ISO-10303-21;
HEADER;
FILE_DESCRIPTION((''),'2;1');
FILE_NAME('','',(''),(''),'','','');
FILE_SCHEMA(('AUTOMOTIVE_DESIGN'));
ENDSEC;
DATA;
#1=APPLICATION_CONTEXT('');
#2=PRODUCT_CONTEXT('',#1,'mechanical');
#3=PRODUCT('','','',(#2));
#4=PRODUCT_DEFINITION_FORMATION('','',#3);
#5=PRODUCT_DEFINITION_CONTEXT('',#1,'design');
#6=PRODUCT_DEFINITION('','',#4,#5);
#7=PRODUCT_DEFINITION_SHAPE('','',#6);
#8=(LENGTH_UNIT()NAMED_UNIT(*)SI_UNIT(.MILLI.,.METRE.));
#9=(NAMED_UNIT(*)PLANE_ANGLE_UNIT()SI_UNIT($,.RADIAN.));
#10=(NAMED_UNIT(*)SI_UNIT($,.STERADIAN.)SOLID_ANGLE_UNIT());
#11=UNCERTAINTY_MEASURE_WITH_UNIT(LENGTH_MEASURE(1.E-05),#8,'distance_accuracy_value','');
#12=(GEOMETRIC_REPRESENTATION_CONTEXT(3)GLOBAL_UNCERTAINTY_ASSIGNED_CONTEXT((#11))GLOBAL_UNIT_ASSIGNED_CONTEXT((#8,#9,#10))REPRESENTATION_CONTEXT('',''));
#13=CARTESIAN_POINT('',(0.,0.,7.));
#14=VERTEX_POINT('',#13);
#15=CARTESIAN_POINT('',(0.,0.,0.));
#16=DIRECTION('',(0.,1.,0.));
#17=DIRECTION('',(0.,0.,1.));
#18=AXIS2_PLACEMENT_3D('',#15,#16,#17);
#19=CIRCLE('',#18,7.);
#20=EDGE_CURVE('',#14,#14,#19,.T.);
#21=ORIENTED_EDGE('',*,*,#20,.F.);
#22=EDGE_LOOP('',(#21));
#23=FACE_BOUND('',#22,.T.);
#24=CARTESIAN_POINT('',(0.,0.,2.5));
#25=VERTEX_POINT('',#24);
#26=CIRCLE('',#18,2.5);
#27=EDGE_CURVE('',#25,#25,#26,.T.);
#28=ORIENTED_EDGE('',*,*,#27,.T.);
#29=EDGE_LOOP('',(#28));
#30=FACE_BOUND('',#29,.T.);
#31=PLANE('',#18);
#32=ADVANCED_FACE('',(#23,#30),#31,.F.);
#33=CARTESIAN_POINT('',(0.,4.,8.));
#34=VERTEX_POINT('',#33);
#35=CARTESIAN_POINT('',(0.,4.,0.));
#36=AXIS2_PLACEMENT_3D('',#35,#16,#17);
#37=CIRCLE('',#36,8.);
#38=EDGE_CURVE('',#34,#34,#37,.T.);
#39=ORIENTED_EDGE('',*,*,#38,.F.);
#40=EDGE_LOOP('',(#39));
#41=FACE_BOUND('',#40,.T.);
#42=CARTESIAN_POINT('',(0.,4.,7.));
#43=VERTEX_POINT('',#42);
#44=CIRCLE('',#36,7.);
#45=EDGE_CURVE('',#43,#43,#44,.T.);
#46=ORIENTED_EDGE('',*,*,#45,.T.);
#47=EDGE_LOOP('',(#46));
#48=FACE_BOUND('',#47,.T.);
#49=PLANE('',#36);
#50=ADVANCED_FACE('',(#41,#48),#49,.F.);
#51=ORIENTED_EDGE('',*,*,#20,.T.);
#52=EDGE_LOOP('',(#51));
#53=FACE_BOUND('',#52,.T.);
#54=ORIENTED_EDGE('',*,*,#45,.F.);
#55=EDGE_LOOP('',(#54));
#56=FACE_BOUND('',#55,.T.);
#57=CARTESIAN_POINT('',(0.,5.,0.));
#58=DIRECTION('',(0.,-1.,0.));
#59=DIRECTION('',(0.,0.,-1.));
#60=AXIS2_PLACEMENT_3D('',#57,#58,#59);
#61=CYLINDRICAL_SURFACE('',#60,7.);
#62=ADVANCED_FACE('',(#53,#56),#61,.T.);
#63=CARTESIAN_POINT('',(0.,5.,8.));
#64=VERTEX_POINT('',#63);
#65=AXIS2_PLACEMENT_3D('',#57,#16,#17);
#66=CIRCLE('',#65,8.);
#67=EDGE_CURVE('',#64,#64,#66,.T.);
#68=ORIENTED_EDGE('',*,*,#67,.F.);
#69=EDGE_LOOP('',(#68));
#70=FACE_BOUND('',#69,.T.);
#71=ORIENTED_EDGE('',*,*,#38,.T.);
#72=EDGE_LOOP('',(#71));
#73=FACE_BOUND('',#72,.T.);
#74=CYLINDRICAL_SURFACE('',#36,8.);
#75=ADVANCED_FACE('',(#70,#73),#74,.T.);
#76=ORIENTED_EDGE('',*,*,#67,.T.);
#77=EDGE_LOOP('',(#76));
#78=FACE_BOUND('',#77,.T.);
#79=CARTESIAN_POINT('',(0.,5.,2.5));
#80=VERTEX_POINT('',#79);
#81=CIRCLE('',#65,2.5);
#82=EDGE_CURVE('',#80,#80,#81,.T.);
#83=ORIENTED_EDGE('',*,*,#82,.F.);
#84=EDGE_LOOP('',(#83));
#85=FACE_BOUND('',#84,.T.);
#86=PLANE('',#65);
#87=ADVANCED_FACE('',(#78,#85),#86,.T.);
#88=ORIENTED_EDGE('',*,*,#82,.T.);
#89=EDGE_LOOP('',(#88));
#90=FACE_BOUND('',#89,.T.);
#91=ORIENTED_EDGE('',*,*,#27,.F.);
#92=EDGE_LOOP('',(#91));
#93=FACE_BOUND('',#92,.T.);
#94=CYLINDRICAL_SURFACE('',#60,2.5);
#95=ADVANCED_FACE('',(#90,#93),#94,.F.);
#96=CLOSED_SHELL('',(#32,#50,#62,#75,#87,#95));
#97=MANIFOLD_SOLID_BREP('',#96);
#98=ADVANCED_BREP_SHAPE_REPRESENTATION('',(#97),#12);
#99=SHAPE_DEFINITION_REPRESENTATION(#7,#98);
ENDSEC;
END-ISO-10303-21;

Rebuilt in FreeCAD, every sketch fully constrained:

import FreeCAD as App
import Part
import Sketcher

V = App.Vector

doc = App.newDocument("Part")
body = doc.addObject("PartDesign::Body", "Body")

# Sketch on XZ plane
sketch1 = doc.addObject("Sketcher::SketchObject", "Sketch")
body.addObject(sketch1)
sketch1.AttachmentSupport = (doc.XZ_Plane, [""])
sketch1.MapMode = "FlatFace"
sketch1.addGeometry(Part.Circle(V(0, 0, 0), V(0, 0, 1), 7), False)
sketch1.addGeometry(Part.Circle(V(0, 0, 0), V(0, 0, 1), 2.5), False)
sketch1.addConstraint(Sketcher.Constraint("Coincident", 0, 3, -1, 1))
sketch1.addConstraint(Sketcher.Constraint("Coincident", 1, 3, -1, 1))
sketch1.addConstraint(Sketcher.Constraint("Diameter", 0, 14.0))
sketch1.addConstraint(Sketcher.Constraint("Diameter", 1, 5.0))
pad1 = doc.addObject("PartDesign::Pad", "Pad")
body.addObject(pad1)
pad1.Profile = sketch1
pad1.Length = 5
pad1.Reversed = True

# Sketch on XZ plane
sketch2 = doc.addObject("Sketcher::SketchObject", "Sketch001")
body.addObject(sketch2)
sketch2.AttachmentSupport = (doc.XZ_Plane, [""])
sketch2.MapMode = "FlatFace"
sketch2.AttachmentOffset = App.Placement(V(0, 0, -5), App.Rotation())
sketch2.addGeometry(Part.Circle(V(0, 0, 0), V(0, 0, 1), 8), False)
sketch2.addGeometry(Part.Circle(V(0, 0, 0), V(0, 0, 1), 5.723236), False)
sketch2.addConstraint(Sketcher.Constraint("Coincident", 0, 3, -1, 1))
sketch2.addConstraint(Sketcher.Constraint("Coincident", 1, 3, -1, 1))
sketch2.addConstraint(Sketcher.Constraint("Diameter", 0, 16.0))
sketch2.addConstraint(Sketcher.Constraint("Diameter", 1, 11.446473))
pad2 = doc.addObject("PartDesign::Pad", "Pad001")
body.addObject(pad2)
pad2.Profile = sketch2
pad2.Length = 1

doc.recompute()
